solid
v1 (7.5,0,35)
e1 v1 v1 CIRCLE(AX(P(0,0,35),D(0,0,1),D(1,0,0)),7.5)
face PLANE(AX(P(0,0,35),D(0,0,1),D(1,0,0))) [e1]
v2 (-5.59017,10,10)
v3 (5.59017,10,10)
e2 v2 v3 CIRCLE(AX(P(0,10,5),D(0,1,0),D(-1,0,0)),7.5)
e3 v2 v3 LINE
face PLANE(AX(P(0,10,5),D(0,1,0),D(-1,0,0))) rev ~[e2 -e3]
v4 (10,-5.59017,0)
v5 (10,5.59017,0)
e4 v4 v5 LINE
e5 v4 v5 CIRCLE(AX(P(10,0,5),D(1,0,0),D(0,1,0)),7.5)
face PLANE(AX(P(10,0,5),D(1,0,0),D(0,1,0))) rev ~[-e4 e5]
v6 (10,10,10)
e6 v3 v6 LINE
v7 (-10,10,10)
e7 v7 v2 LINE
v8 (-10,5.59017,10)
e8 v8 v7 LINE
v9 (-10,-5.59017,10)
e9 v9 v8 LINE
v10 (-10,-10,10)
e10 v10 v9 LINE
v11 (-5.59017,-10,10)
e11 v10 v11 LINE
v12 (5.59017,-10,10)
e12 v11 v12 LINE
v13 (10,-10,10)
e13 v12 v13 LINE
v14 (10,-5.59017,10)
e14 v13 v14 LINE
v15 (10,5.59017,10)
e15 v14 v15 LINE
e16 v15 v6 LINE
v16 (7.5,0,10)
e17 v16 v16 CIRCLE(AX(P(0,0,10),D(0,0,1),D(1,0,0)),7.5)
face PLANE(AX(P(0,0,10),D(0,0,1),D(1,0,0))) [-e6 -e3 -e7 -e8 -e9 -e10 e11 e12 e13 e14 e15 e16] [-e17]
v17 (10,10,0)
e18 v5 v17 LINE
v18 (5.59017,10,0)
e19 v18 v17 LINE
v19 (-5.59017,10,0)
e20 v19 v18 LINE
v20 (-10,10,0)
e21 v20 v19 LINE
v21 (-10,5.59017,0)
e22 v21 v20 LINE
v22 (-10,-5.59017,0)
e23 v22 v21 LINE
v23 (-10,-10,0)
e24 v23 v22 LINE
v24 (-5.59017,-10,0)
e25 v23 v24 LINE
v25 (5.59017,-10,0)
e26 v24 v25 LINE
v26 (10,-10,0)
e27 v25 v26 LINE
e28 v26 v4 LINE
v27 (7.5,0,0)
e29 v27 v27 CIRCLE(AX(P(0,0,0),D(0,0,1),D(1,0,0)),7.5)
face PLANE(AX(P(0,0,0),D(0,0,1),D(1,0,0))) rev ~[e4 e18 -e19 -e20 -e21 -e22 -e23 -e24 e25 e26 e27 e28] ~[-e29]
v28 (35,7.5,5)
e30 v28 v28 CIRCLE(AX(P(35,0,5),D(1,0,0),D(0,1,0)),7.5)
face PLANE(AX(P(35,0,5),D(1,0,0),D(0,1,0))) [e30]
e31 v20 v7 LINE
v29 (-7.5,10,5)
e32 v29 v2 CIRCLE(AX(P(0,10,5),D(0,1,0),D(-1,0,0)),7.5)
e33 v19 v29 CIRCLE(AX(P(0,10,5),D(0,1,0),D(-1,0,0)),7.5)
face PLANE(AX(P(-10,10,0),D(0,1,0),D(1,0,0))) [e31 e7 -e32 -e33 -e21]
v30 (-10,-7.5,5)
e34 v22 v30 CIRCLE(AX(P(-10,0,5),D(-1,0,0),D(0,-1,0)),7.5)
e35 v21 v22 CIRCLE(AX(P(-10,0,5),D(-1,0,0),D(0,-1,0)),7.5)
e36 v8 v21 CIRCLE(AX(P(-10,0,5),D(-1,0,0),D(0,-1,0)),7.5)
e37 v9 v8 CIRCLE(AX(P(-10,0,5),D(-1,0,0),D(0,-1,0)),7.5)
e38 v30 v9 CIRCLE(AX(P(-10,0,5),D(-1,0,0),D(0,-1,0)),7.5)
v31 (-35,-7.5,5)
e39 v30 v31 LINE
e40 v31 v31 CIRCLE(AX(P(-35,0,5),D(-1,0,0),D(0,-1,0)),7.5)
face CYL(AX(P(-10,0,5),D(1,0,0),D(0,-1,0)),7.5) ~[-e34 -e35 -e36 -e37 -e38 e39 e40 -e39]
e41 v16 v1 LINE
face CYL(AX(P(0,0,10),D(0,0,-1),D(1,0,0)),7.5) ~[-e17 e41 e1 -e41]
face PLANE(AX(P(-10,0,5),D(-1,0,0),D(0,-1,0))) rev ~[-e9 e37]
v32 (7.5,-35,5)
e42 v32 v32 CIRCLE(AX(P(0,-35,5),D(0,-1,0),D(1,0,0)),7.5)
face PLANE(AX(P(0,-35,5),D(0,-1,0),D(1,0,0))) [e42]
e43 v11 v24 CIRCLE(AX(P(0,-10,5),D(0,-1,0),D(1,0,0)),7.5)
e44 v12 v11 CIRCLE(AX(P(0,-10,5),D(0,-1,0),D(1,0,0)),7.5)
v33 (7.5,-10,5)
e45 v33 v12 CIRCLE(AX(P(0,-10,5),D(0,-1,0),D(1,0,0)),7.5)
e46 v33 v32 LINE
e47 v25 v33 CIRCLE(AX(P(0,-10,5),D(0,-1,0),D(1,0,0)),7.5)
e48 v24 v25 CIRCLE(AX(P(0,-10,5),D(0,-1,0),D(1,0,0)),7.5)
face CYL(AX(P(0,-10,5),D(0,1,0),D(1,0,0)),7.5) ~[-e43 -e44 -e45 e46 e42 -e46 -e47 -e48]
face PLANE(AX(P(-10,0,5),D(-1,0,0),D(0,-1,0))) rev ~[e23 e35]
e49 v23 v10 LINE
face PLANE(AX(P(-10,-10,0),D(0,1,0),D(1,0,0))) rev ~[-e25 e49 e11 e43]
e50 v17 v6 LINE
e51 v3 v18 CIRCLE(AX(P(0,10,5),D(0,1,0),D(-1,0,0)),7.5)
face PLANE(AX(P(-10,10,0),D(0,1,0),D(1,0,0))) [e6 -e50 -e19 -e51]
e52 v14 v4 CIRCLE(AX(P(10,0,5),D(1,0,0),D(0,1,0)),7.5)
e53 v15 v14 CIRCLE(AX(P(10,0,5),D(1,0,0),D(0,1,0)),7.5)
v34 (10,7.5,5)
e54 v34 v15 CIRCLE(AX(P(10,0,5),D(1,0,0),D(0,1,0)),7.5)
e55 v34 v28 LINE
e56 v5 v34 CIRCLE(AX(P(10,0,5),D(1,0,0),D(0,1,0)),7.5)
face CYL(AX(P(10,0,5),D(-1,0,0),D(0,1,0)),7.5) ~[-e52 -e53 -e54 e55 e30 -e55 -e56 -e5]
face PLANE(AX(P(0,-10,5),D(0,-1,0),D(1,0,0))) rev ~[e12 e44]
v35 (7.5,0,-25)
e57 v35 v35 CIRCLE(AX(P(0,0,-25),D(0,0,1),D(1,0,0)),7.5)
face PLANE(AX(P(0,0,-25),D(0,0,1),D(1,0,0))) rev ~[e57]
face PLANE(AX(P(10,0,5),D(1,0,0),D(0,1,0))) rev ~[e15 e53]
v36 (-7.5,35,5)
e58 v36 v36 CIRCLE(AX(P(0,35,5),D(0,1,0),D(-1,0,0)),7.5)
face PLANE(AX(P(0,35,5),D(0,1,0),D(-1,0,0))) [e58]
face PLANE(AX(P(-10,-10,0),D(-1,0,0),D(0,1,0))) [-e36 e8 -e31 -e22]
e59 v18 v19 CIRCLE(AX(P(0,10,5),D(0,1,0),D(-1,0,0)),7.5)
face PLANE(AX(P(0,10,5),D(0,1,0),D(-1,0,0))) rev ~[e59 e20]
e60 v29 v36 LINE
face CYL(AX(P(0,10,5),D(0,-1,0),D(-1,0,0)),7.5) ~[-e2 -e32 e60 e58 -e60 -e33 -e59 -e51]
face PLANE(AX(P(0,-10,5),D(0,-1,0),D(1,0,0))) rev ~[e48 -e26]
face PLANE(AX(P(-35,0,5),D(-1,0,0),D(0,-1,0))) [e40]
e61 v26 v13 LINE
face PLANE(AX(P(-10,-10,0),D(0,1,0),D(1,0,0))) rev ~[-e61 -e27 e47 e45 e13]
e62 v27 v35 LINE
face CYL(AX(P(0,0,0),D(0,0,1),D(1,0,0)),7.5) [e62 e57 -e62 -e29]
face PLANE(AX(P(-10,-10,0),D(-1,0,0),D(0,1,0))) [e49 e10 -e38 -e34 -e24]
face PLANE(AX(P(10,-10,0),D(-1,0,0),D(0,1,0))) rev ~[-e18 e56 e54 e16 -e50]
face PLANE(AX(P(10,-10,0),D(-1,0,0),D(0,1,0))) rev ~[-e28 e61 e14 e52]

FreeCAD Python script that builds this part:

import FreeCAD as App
import Part
import Sketcher

V = App.Vector


def add_polygon(sketch, points):
    """Adds a closed chain of lines whose ends are joined by coincident constraints."""
    first, n = sketch.GeometryCount, len(points)
    for a, b in zip(points, points[1:] + points[:1]):
        sketch.addGeometry(Part.LineSegment(App.Vector(*a, 0), App.Vector(*b, 0)), False)
    for i in range(n):
        sketch.addConstraint(Sketcher.Constraint("Coincident", first + i, 2, first + (i + 1) % n, 1))

doc = App.newDocument("Part")
params = doc.addObject("Spreadsheet::Sheet", "Params")
for row, (alias, value) in enumerate([
    ("sketch1_width", "20 mm"),
    ("pad1_length", "10 mm"),
    ("sketch2_diameter", "15 mm"),
    ("pad2_length", "25 mm"),
    ("sketch3_diameter", "15 mm"),
    ("pad3_length", "25 mm"),
    ("sketch4_diameter", "15 mm"),
    ("pad4_length", "25 mm"),
    ("sketch5_diameter", "15 mm"),
    ("pad5_length", "25 mm"),
    ("sketch6_diameter", "15 mm"),
    ("pad6_length", "25 mm"),
    ("sketch7_diameter", "15 mm"),
    ("pad7_length", "25 mm"),
], start=1):
    params.set(f"A{row}", alias)
    params.set(f"B{row}", "=" + value)
    params.setAlias(f"B{row}", alias)

body = doc.addObject("PartDesign::Body", "Body")

# Sketch on XY plane
sketch1 = body.newObject("Sketcher::SketchObject", "Sketch")
sketch1.AttachmentSupport = (doc.getObject("XY_Plane"), [""])
sketch1.MapMode = "FlatFace"
add_polygon(sketch1, [(-10, 10), (-10, -10), (10, -10), (10, 10)])  # lines 0-3
sketch1.addConstraint([
    Sketcher.Constraint("Vertical", 0),
    Sketcher.Constraint("Horizontal", 1),
    Sketcher.Constraint("Vertical", 2),
    Sketcher.Constraint("Horizontal", 3),
    Sketcher.Constraint("Symmetric", 0, 2, 2, 2, -1, 1),
    Sketcher.Constraint("Equal", 3, 0),
    Sketcher.Constraint("DistanceX", 1, 1, 1, 2, 20.0),
])
sketch1.setExpression("Constraints[10]", "Params.sketch1_width")
pad1 = body.newObject("PartDesign::Pad", "Pad")
pad1.Profile = sketch1
pad1.setExpression("Length", "Params.pad1_length")

# Sketch on XY plane
sketch2 = body.newObject("Sketcher::SketchObject", "Sketch001")
sketch2.AttachmentSupport = (doc.getObject("XY_Plane"), [""])
sketch2.MapMode = "FlatFace"
sketch2.AttachmentOffset = App.Placement(V(0, 0, 10), App.Rotation())
sketch2.addGeometry(Part.Circle(V(0, 0, 0), V(0, 0, 1), 8), False)
sketch2.addConstraint([
    Sketcher.Constraint("Coincident", 0, 3, -1, 1),
    Sketcher.Constraint("Diameter", 0, 15.0),
])
sketch2.setExpression("Constraints[1]", "Params.sketch2_diameter")
pad2 = body.newObject("PartDesign::Pad", "Pad001")
pad2.Profile = sketch2
pad2.setExpression("Length", "Params.pad2_length")

# Sketch on XZ plane
sketch3 = body.newObject("Sketcher::SketchObject", "Sketch002")
sketch3.AttachmentSupport = (doc.getObject("XZ_Plane"), [""])
sketch3.MapMode = "FlatFace"
sketch3.AttachmentOffset = App.Placement(V(0, 0, -10), App.Rotation())
sketch3.addGeometry(Part.Circle(V(0, 5, 0), V(0, 0, 1), 8), False)
sketch3.addConstraint([
    Sketcher.Constraint("PointOnObject", 0, 3, -2),
    Sketcher.Constraint("Diameter", 0, 15.0),
    Sketcher.Constraint("DistanceY", -1, 1, 0, 3, 5.0),
])
sketch3.setExpression("Constraints[1]", "Params.sketch3_diameter")
pad3 = body.newObject("PartDesign::Pad", "Pad002")
pad3.Profile = sketch3
pad3.setExpression("Length", "Params.pad3_length")
pad3.Reversed = True

# Sketch on XZ plane
sketch4 = body.newObject("Sketcher::SketchObject", "Sketch003")
sketch4.AttachmentSupport = (doc.getObject("XZ_Plane"), [""])
sketch4.MapMode = "FlatFace"
sketch4.AttachmentOffset = App.Placement(V(0, 0, 10), App.Rotation())
sketch4.addGeometry(Part.Circle(V(0, 5, 0), V(0, 0, 1), 8), False)
sketch4.addConstraint([
    Sketcher.Constraint("PointOnObject", 0, 3, -2),
    Sketcher.Constraint("Diameter", 0, 15.0),
    Sketcher.Constraint("DistanceY", -1, 1, 0, 3, 5.0),
])
sketch4.setExpression("Constraints[1]", "Params.sketch4_diameter")
pad4 = body.newObject("PartDesign::Pad", "Pad003")
pad4.Profile = sketch4
pad4.setExpression("Length", "Params.pad4_length")

# Sketch on YZ plane
sketch5 = body.newObject("Sketcher::SketchObject", "Sketch004")
sketch5.AttachmentSupport = (doc.getObject("YZ_Plane"), [""])
sketch5.MapMode = "FlatFace"
sketch5.AttachmentOffset = App.Placement(V(0, 0, -10), App.Rotation())
sketch5.addGeometry(Part.Circle(V(0, 5, 0), V(0, 0, 1), 8), False)
sketch5.addConstraint([
    Sketcher.Constraint("PointOnObject", 0, 3, -2),
    Sketcher.Constraint("Diameter", 0, 15.0),
    Sketcher.Constraint("DistanceY", -1, 1, 0, 3, 5.0),
])
sketch5.setExpression("Constraints[1]", "Params.sketch5_diameter")
pad5 = body.newObject("PartDesign::Pad", "Pad004")
pad5.Profile = sketch5
pad5.setExpression("Length", "Params.pad5_length")
pad5.Reversed = True

# Sketch on YZ plane
sketch6 = body.newObject("Sketcher::SketchObject", "Sketch005")
sketch6.AttachmentSupport = (doc.getObject("YZ_Plane"), [""])
sketch6.MapMode = "FlatFace"
sketch6.AttachmentOffset = App.Placement(V(0, 0, 10), App.Rotation())
sketch6.addGeometry(Part.Circle(V(0, 5, 0), V(0, 0, 1), 8), False)
sketch6.addConstraint([
    Sketcher.Constraint("PointOnObject", 0, 3, -2),
    Sketcher.Constraint("Diameter", 0, 15.0),
    Sketcher.Constraint("DistanceY", -1, 1, 0, 3, 5.0),
])
sketch6.setExpression("Constraints[1]", "Params.sketch6_diameter")
pad6 = body.newObject("PartDesign::Pad", "Pad005")
pad6.Profile = sketch6
pad6.setExpression("Length", "Params.pad6_length")

# Sketch on XY plane
sketch7 = body.newObject("Sketcher::SketchObject", "Sketch006")
sketch7.AttachmentSupport = (doc.getObject("XY_Plane"), [""])
sketch7.MapMode = "FlatFace"
sketch7.addGeometry(Part.Circle(V(0, 0, 0), V(0, 0, 1), 8), False)
sketch7.addConstraint([
    Sketcher.Constraint("Coincident", 0, 3, -1, 1),
    Sketcher.Constraint("Diameter", 0, 15.0),
])
sketch7.setExpression("Constraints[1]", "Params.sketch7_diameter")
pad7 = body.newObject("PartDesign::Pad", "Pad006")
pad7.Profile = sketch7
pad7.setExpression("Length", "Params.pad7_length")
pad7.Reversed = True

doc.recompute()
